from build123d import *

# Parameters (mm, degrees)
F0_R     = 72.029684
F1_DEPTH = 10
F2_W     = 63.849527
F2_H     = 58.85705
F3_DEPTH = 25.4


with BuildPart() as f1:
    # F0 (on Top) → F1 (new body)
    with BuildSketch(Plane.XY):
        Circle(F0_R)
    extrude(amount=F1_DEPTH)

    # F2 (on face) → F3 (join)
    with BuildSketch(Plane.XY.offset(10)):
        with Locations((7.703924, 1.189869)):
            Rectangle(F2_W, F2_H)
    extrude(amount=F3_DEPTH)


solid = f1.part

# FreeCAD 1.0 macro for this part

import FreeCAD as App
import Part
import Sketcher
Q = App.Units.Quantity


def add_polygon(sketch, points):
    """Adds a closed chain of lines whose ends are joined by coincident constraints."""
    first, n = sketch.GeometryCount, len(points)
    for a, b in zip(points, points[1:] + points[:1]):
        sketch.addGeometry(Part.LineSegment(App.Vector(*a, 0), App.Vector(*b, 0)), False)
    for i in range(n):
        sketch.addConstraint(Sketcher.Constraint("Coincident", first + i, 2, first + (i + 1) % n, 1))

doc = App.newDocument("Part")
params = doc.addObject("Spreadsheet::Sheet", "Params")
for row, (alias, value) in enumerate([
    ("pad1_length", "10 mm"),
    ("pad2_length", "25.4 mm"),
], start=1):
    params.set(f"A{row}", alias)
    params.set(f"B{row}", "=" + value)
    params.setAlias(f"B{row}", alias)

body = doc.addObject("PartDesign::Body", "Body")

sketch1 = body.newObject("Sketcher::SketchObject", "Sketch")
sketch1.AttachmentSupport = (doc.getObject("XY_Plane"), [""])
sketch1.MapMode = "FlatFace"
sketch1.addGeometry(Part.Circle(App.Vector(0, 0, 0), App.Vector(0, 0, 1), 72), False)
sketch1.addConstraint([
    Sketcher.Constraint("Coincident", 0, 3, -1, 1),
    Sketcher.Constraint("Diameter", 0, Q("144.059368 mm")),
])
pad1 = body.newObject("PartDesign::Pad", "Pad")
pad1.Profile = sketch1
pad1.setExpression("Length", "Params.pad1_length")

sketch2 = body.newObject("Sketcher::SketchObject", "Sketch001")
sketch2.AttachmentSupport = (doc.getObject("XY_Plane"), [""])
sketch2.MapMode = "FlatFace"
sketch2.AttachmentOffset = App.Placement(App.Vector(0, 0, 10), App.Rotation())
add_polygon(sketch2, [(-24, 31), (-24, -28), (40, -28), (40, 31)])
sketch2.addConstraint([
    Sketcher.Constraint("Vertical", 0),
    Sketcher.Constraint("Horizontal", 1),
    Sketcher.Constraint("Vertical", 2),
    Sketcher.Constraint("Horizontal", 3),
    Sketcher.Constraint("DistanceY", 0, 2, 0, 1, Q("58.85705 mm")),
    Sketcher.Constraint("DistanceX", 1, 1, 1, 2, Q("63.849527 mm")),
    Sketcher.Constraint("DistanceX", 0, 2, -1, 1, Q("24.22084 mm")),
    Sketcher.Constraint("DistanceY", 0, 2, -1, 1, Q("28.238656 mm")),
])
pad2 = body.newObject("PartDesign::Pad", "Pad001")
pad2.Profile = sketch2
pad2.setExpression("Length", "Params.pad2_length")

doc.recompute()
